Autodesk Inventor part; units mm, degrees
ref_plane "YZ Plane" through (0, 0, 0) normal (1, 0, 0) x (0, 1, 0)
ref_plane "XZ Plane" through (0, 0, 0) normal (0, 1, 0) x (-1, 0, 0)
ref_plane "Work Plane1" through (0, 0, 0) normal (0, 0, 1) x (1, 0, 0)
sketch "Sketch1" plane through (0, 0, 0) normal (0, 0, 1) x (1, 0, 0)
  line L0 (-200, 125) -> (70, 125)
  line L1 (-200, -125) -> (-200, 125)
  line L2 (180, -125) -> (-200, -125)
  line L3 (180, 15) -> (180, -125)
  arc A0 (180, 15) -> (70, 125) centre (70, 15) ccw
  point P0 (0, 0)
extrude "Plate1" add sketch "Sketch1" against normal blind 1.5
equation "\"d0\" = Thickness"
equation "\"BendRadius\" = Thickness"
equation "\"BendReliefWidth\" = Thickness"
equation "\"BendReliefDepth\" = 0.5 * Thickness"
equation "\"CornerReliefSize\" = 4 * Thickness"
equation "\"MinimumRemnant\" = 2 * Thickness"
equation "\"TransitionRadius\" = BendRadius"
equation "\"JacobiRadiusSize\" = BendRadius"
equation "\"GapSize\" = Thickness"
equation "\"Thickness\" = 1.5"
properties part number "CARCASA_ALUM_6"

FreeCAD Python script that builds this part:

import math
import FreeCAD as App
import Part
import Sketcher
from FreeCAD import Vector

doc = App.newDocument("Part")
body = doc.addObject("PartDesign::Body", "Body")

# Sketch on XY plane
sketch1 = body.newObject("Sketcher::SketchObject", "Sketch")
sketch1.AttachmentSupport = (doc.getObject("XY_Plane"), [""])
sketch1.MapMode = "FlatFace"
sketch1.addGeometry(Part.LineSegment(Vector(70, 125, 0), Vector(-200, 125, 0)), False)
sketch1.addGeometry(Part.LineSegment(Vector(-200, 125, 0), Vector(-200, -125, 0)), False)
sketch1.addGeometry(Part.LineSegment(Vector(-200, -125, 0), Vector(180, -125, 0)), False)
sketch1.addGeometry(Part.LineSegment(Vector(180, -125, 0), Vector(180, 15, 0)), False)
sketch1.addGeometry(Part.ArcOfCircle(Part.Circle(Vector(70, 15, 0), Vector(0, 0, 1), 110), math.radians(0), math.radians(90)), False)
sketch1.addConstraint(Sketcher.Constraint("Coincident", 0, 2, 1, 1))
sketch1.addConstraint(Sketcher.Constraint("Coincident", 1, 2, 2, 1))
sketch1.addConstraint(Sketcher.Constraint("Coincident", 2, 2, 3, 1))
sketch1.addConstraint(Sketcher.Constraint("Tangent", 3, 2, 4, 1))
sketch1.addConstraint(Sketcher.Constraint("Tangent", 4, 2, 0, 1))
sketch1.addConstraint(Sketcher.Constraint("Horizontal", 0))
sketch1.addConstraint(Sketcher.Constraint("Vertical", 1))
sketch1.addConstraint(Sketcher.Constraint("Horizontal", 2))
sketch1.addConstraint(Sketcher.Constraint("Vertical", 3))
sketch1.addConstraint(Sketcher.Constraint("Radius", 4, 110.0))
sketch1.addConstraint(Sketcher.Constraint("DistanceX", 0, 2, 0, 1, 270.0))
sketch1.addConstraint(Sketcher.Constraint("DistanceY", 1, 2, 1, 1, 250.0))
sketch1.addConstraint(Sketcher.Constraint("DistanceX", -1, 1, 4, 3, 70.0))
sketch1.addConstraint(Sketcher.Constraint("DistanceY", -1, 1, 4, 3, 15.0))
pad1 = body.newObject("PartDesign::Pad", "Pad")
pad1.Profile = sketch1
pad1.Length = 1.5
pad1.Reversed = True

doc.recompute()
